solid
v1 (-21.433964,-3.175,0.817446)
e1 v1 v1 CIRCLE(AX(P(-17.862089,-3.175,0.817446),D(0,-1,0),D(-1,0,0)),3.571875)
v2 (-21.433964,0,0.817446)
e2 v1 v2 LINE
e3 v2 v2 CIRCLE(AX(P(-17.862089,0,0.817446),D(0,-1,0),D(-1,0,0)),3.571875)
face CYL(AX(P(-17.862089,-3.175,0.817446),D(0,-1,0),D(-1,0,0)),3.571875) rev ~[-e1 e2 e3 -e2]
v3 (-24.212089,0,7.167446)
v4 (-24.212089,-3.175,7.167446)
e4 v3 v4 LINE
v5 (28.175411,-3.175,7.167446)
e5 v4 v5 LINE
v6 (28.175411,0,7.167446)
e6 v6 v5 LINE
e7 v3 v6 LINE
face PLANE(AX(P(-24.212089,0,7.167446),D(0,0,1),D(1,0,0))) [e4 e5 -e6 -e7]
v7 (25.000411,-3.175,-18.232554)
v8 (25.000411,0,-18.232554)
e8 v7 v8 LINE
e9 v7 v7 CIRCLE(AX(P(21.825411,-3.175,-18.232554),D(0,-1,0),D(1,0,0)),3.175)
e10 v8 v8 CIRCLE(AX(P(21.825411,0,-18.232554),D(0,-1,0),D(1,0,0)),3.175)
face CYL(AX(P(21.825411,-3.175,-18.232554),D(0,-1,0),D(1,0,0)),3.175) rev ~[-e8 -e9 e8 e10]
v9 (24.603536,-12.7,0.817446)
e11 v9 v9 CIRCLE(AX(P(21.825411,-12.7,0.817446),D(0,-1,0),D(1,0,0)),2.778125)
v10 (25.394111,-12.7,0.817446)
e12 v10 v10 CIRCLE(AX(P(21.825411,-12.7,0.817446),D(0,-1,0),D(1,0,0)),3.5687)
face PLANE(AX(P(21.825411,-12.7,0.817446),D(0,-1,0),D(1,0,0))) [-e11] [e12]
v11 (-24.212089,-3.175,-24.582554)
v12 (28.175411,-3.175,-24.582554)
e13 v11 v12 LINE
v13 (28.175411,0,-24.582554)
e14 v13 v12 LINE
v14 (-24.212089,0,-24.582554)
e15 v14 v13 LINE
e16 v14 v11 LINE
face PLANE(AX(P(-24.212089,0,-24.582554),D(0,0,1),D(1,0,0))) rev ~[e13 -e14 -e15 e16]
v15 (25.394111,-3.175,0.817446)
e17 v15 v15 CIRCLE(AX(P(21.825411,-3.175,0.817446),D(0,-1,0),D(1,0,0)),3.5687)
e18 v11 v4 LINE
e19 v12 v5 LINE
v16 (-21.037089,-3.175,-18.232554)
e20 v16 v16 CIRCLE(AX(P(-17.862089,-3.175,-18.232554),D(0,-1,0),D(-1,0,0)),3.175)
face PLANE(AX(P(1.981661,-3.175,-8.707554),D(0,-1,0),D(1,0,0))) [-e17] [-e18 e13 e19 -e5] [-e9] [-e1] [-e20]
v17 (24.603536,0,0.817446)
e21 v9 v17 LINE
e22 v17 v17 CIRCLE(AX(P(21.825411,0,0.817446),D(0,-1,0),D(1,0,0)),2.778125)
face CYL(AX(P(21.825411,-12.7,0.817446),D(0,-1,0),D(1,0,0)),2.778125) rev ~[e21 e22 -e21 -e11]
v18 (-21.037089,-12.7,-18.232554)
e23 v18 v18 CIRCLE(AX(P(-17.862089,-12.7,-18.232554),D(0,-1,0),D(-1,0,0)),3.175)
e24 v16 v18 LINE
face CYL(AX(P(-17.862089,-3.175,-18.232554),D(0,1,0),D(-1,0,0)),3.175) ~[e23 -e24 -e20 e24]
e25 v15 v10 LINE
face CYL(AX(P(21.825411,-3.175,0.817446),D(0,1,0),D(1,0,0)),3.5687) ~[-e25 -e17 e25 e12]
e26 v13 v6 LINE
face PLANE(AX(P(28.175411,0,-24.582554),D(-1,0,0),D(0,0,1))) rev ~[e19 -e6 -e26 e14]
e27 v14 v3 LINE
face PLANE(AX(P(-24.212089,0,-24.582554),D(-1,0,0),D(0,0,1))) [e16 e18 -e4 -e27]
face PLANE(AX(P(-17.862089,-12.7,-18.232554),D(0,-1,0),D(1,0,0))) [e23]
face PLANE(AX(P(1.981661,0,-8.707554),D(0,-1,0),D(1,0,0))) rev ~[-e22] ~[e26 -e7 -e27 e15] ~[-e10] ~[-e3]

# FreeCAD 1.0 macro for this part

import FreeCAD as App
import Part
import Sketcher

V = App.Vector
Q = App.Units.Quantity

doc = App.newDocument("Part")
body = doc.addObject("PartDesign::Body", "Body")

# Sketch on XZ plane
sketch1 = doc.addObject("Sketcher::SketchObject", "Sketch")
body.addObject(sketch1)
sketch1.AttachmentSupport = (doc.XZ_Plane, [""])
sketch1.MapMode = "FlatFace"
sketch1.addGeometry([
    Part.LineSegment(V(-24, 7, 0), V(-24, -25, 0)),
    Part.LineSegment(V(-24, -25, 0), V(28, -25, 0)),
    Part.LineSegment(V(28, -25, 0), V(28, 7, 0)),
    Part.LineSegment(V(28, 7, 0), V(-24, 7, 0)),
], False)
sketch1.addConstraint([
    Sketcher.Constraint("Coincident", 0, 2, 1, 1),
    Sketcher.Constraint("Coincident", 1, 2, 2, 1),
    Sketcher.Constraint("Coincident", 2, 2, 3, 1),
    Sketcher.Constraint("Coincident", 3, 2, 0, 1),
    Sketcher.Constraint("Vertical", 0),
    Sketcher.Constraint("Horizontal", 1),
    Sketcher.Constraint("Vertical", 2),
    Sketcher.Constraint("Horizontal", 3),
    Sketcher.Constraint("DistanceY", 0, 2, 0, 1, Q("1.25 in")),
    Sketcher.Constraint("DistanceX", 1, 1, 1, 2, Q("2.0625 in")),
    Sketcher.Constraint("DistanceX", 0, 2, -1, 1, Q("24.212089 mm")),
    Sketcher.Constraint("DistanceY", 0, 2, -1, 1, Q("24.582554 mm")),
])
pad1 = doc.addObject("PartDesign::Pad", "Pad")
body.addObject(pad1)
pad1.Profile = sketch1
pad1.Length = Q("0.125 in")

# Sketch on XZ plane
sketch2 = doc.addObject("Sketcher::SketchObject", "Sketch001")
body.addObject(sketch2)
sketch2.AttachmentSupport = (doc.XZ_Plane, [""])
sketch2.MapMode = "FlatFace"
sketch2.AttachmentOffset = App.Placement(V(0, 0, 0.125 * 25.4), App.Rotation())
sketch2.addGeometry(Part.Circle(V(-17.9, 0.8, 0), V(0, 0, 1), 3.6), False)
sketch2.addConstraint([
    Sketcher.Constraint("Diameter", 0, Q("0.28125 in")),
    Sketcher.Constraint("DistanceX", 0, 3, -1, 1, Q("17.862089 mm")),
    Sketcher.Constraint("DistanceY", -1, 1, 0, 3, Q("0.817446 mm")),
])
pocket1 = doc.addObject("PartDesign::Pocket", "Pocket")
body.addObject(pocket1)
pocket1.Profile = sketch2
pocket1.Type = "ThroughAll"

# Sketch on XZ plane
sketch3 = doc.addObject("Sketcher::SketchObject", "Sketch002")
body.addObject(sketch3)
sketch3.AttachmentSupport = (doc.XZ_Plane, [""])
sketch3.MapMode = "FlatFace"
sketch3.AttachmentOffset = App.Placement(V(0, 0, 0.125 * 25.4), App.Rotation())
sketch3.addGeometry(Part.Circle(V(21.8, 0.8, 0), V(0, 0, 1), 3.6), False)
sketch3.addConstraint([
    Sketcher.Constraint("Diameter", 0, Q("0.281 in")),
    Sketcher.Constraint("DistanceX", -1, 1, 0, 3, Q("21.825411 mm")),
    Sketcher.Constraint("DistanceY", -1, 1, 0, 3, Q("0.817446 mm")),
])
pad2 = doc.addObject("PartDesign::Pad", "Pad001")
body.addObject(pad2)
pad2.Profile = sketch3
pad2.Length = Q("0.375 in")

# Sketch on XZ plane
sketch4 = doc.addObject("Sketcher::SketchObject", "Sketch003")
body.addObject(sketch4)
sketch4.AttachmentSupport = (doc.XZ_Plane, [""])
sketch4.MapMode = "FlatFace"
sketch4.AttachmentOffset = App.Placement(V(0, 0, 0.5 * 25.4), App.Rotation())
sketch4.addGeometry(Part.Circle(V(21.8, 0.8, 0), V(0, 0, 1), 2.8), False)
sketch4.addConstraint([
    Sketcher.Constraint("Diameter", 0, Q("0.21875 in")),
    Sketcher.Constraint("DistanceX", -1, 1, 0, 3, Q("21.825411 mm")),
    Sketcher.Constraint("DistanceY", -1, 1, 0, 3, Q("0.817446 mm")),
])
pocket2 = doc.addObject("PartDesign::Pocket", "Pocket001")
body.addObject(pocket2)
pocket2.Profile = sketch4
pocket2.Type = "ThroughAll"

# Sketch on XZ plane
sketch5 = doc.addObject("Sketcher::SketchObject", "Sketch004")
body.addObject(sketch5)
sketch5.AttachmentSupport = (doc.XZ_Plane, [""])
sketch5.MapMode = "FlatFace"
sketch5.AttachmentOffset = App.Placement(V(0, 0, 0.125 * 25.4), App.Rotation())
sketch5.addGeometry(Part.Circle(V(-17.9, -18.2, 0), V(0, 0, 1), 3.2), False)
sketch5.addConstraint([
    Sketcher.Constraint("Diameter", 0, Q("0.25 in")),
    Sketcher.Constraint("DistanceX", 0, 3, -1, 1, Q("17.862089 mm")),
    Sketcher.Constraint("DistanceY", 0, 3, -1, 1, Q("18.232554 mm")),
])
pad3 = doc.addObject("PartDesign::Pad", "Pad002")
body.addObject(pad3)
pad3.Profile = sketch5
pad3.Length = Q("0.375 in")

# Sketch on XZ plane
sketch6 = doc.addObject("Sketcher::SketchObject", "Sketch005")
body.addObject(sketch6)
sketch6.AttachmentSupport = (doc.XZ_Plane, [""])
sketch6.MapMode = "FlatFace"
sketch6.AttachmentOffset = App.Placement(V(0, 0, 0.125 * 25.4), App.Rotation())
sketch6.addGeometry(Part.Circle(V(21.8, -18.2, 0), V(0, 0, 1), 3.2), False)
sketch6.addConstraint([
    Sketcher.Constraint("Diameter", 0, Q("0.25 in")),
    Sketcher.Constraint("DistanceX", -1, 1, 0, 3, Q("21.825411 mm")),
    Sketcher.Constraint("DistanceY", 0, 3, -1, 1, Q("18.232554 mm")),
])
pocket3 = doc.addObject("PartDesign::Pocket", "Pocket002")
body.addObject(pocket3)
pocket3.Profile = sketch6
pocket3.Type = "ThroughAll"

doc.recompute()
